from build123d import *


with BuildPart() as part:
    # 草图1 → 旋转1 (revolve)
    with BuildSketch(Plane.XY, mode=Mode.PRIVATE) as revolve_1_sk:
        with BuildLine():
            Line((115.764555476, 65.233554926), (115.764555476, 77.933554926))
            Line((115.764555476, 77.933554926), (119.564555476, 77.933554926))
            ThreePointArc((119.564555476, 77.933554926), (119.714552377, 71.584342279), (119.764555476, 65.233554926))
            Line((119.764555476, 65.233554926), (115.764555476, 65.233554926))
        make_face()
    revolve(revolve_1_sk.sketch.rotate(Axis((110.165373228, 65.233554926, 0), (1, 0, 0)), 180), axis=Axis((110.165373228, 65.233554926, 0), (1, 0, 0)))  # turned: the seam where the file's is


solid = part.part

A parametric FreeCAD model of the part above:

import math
import FreeCAD as App
import Part
import Sketcher
from FreeCAD import Vector
Q = App.Units.Quantity

doc = App.newDocument("Part")
body = doc.addObject("PartDesign::Body", "Body")

sketch1 = body.newObject("Sketcher::SketchObject", "Sketch")
sketch1.AttachmentSupport = (doc.getObject("XY_Plane"), [""])
sketch1.MapMode = "FlatFace"
sketch1.addGeometry([
    Part.LineSegment(Vector(115.764555, 77.933555, 0), Vector(115.764555, 65.233555, 0)),
    Part.LineSegment(Vector(115.764555, 65.233555, 0), Vector(119.764555, 65.233555, 0)),
    Part.ArcOfCircle(Part.Circle(Vector(-283.560439, 65.233555, 0), Vector(0, 0, 1), 403.324995), math.radians(0), math.radians(1.804442)),
    Part.LineSegment(Vector(119.564555, 77.933555, 0), Vector(115.764555, 77.933555, 0)),
], False)
sketch1.addGeometry(Part.LineSegment(Vector(-283.560439, 65.233555, 0), Vector(119.764555, 65.233555, 0)), True)
sketch1.addConstraint([
    Sketcher.Constraint("Coincident", 0, 2, 1, 1),
    Sketcher.Constraint("Coincident", 1, 2, 2, 1),
    Sketcher.Constraint("Coincident", 2, 2, 3, 1),
    Sketcher.Constraint("Coincident", 3, 2, 0, 1),
    Sketcher.Constraint("Vertical", 0),
    Sketcher.Constraint("Horizontal", 1),
    Sketcher.Constraint("Horizontal", 3),
    Sketcher.Constraint("Horizontal", 4),
    Sketcher.Constraint("Coincident", 4, 1, 2, 3),
    Sketcher.Constraint("Coincident", 4, 2, 1, 2),
    Sketcher.Constraint("DistanceX", 1, 1, 1, 2, Q("4 mm")),
    Sketcher.Constraint("DistanceX", 3, 2, 3, 1, Q("3.8 mm")),
    Sketcher.Constraint("DistanceY", 0, 2, 0, 1, Q("12.7 mm")),
    Sketcher.Constraint("DistanceX", 2, 3, -1, 1, Q("283.560439 mm")),
    Sketcher.Constraint("DistanceY", -1, 1, 2, 3, Q("65.233555 mm")),
])
revolution = body.newObject("PartDesign::Revolution", "Revolution")
revolution.Profile = sketch1
revolution.ReferenceAxis = (sketch1, ["Axis0"])
revolution.Angle = 360

doc.recompute()
